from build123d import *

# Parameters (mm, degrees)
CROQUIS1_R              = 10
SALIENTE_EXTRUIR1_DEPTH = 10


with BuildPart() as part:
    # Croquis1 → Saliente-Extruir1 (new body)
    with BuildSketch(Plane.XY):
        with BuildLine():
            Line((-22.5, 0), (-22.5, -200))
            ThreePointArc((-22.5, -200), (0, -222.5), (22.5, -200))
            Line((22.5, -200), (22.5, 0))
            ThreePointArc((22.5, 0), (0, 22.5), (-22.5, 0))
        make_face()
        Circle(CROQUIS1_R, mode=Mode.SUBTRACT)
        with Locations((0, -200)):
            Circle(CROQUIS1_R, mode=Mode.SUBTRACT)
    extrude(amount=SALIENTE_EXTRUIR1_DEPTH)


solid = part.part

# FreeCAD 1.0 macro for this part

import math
import FreeCAD as App
import Part
import Sketcher
from FreeCAD import Vector

doc = App.newDocument("Part")
body = doc.addObject("PartDesign::Body", "Body")

# Sketch on XY plane
sketch1 = doc.addObject("Sketcher::SketchObject", "Sketch")
body.addObject(sketch1)
sketch1.AttachmentSupport = (doc.XY_Plane, [""])
sketch1.MapMode = "FlatFace"
sketch1.addGeometry([
    Part.LineSegment(Vector(-22.5, 0, 0), Vector(-22.5, -200, 0)),  # 0
    Part.ArcOfCircle(Part.Circle(Vector(0, -200, 0), Vector(0, 0, 1), 22.5), math.radians(180), math.radians(360)),  # 1
    Part.LineSegment(Vector(22.5, -200, 0), Vector(22.5, 0, 0)),  # 2
    Part.ArcOfCircle(Part.Circle(Vector(0, 0, 0), Vector(0, 0, 1), 22.5), math.radians(0), math.radians(180)),  # 3
    Part.Circle(Vector(0, -200, 0), Vector(0, 0, 1), 10),  # 4
    Part.Circle(Vector(0, 0, 0), Vector(0, 0, 1), 10),  # 5
], False)
sketch1.addConstraint([
    Sketcher.Constraint("Tangent", 0, 2, 1, 1),
    Sketcher.Constraint("Tangent", 1, 2, 2, 1),
    Sketcher.Constraint("Tangent", 2, 2, 3, 1),
    Sketcher.Constraint("Tangent", 3, 2, 0, 1),
    Sketcher.Constraint("Vertical", 0),
    Sketcher.Constraint("Vertical", 2),
    Sketcher.Constraint("Coincident", 3, 3, -1, 1),
    Sketcher.Constraint("Coincident", 5, 3, -1, 1),
    Sketcher.Constraint("Coincident", 4, 3, 1, 3),
    Sketcher.Constraint("Equal", 4, 5),
    Sketcher.Constraint("Diameter", 4, 20.0),
    Sketcher.Constraint("Radius", 1, 22.5),
    Sketcher.Constraint("DistanceY", 0, 2, 0, 1, 200.0),
])
pad1 = doc.addObject("PartDesign::Pad", "Pad")
body.addObject(pad1)
pad1.Profile = sketch1
pad1.Length = 10

doc.recompute()
